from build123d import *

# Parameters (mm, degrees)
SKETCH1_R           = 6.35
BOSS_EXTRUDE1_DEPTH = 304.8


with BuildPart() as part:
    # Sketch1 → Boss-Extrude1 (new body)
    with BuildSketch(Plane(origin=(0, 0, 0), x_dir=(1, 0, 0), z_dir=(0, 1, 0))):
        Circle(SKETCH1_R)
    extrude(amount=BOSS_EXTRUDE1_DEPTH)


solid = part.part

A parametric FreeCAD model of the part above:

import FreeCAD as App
import Part
import Sketcher
from FreeCAD import Vector
Q = App.Units.Quantity

doc = App.newDocument("Part")
body = doc.addObject("PartDesign::Body", "Body")

sketch1 = body.newObject("Sketcher::SketchObject", "Sketch")
sketch1.AttachmentSupport = (doc.getObject("XZ_Plane"), [""])
sketch1.MapMode = "FlatFace"
sketch1.addGeometry(Part.Circle(Vector(0, 0, 0), Vector(0, 0, 1), 6.35), False)
sketch1.addConstraint(Sketcher.Constraint("Coincident", 0, 3, -1, 1))
sketch1.addConstraint(Sketcher.Constraint("Diameter", 0, Q("0.5 in")))
pad1 = body.newObject("PartDesign::Pad", "Pad")
pad1.Profile = sketch1
pad1.Length = Q("12 in")
pad1.Reversed = True

doc.recompute()
